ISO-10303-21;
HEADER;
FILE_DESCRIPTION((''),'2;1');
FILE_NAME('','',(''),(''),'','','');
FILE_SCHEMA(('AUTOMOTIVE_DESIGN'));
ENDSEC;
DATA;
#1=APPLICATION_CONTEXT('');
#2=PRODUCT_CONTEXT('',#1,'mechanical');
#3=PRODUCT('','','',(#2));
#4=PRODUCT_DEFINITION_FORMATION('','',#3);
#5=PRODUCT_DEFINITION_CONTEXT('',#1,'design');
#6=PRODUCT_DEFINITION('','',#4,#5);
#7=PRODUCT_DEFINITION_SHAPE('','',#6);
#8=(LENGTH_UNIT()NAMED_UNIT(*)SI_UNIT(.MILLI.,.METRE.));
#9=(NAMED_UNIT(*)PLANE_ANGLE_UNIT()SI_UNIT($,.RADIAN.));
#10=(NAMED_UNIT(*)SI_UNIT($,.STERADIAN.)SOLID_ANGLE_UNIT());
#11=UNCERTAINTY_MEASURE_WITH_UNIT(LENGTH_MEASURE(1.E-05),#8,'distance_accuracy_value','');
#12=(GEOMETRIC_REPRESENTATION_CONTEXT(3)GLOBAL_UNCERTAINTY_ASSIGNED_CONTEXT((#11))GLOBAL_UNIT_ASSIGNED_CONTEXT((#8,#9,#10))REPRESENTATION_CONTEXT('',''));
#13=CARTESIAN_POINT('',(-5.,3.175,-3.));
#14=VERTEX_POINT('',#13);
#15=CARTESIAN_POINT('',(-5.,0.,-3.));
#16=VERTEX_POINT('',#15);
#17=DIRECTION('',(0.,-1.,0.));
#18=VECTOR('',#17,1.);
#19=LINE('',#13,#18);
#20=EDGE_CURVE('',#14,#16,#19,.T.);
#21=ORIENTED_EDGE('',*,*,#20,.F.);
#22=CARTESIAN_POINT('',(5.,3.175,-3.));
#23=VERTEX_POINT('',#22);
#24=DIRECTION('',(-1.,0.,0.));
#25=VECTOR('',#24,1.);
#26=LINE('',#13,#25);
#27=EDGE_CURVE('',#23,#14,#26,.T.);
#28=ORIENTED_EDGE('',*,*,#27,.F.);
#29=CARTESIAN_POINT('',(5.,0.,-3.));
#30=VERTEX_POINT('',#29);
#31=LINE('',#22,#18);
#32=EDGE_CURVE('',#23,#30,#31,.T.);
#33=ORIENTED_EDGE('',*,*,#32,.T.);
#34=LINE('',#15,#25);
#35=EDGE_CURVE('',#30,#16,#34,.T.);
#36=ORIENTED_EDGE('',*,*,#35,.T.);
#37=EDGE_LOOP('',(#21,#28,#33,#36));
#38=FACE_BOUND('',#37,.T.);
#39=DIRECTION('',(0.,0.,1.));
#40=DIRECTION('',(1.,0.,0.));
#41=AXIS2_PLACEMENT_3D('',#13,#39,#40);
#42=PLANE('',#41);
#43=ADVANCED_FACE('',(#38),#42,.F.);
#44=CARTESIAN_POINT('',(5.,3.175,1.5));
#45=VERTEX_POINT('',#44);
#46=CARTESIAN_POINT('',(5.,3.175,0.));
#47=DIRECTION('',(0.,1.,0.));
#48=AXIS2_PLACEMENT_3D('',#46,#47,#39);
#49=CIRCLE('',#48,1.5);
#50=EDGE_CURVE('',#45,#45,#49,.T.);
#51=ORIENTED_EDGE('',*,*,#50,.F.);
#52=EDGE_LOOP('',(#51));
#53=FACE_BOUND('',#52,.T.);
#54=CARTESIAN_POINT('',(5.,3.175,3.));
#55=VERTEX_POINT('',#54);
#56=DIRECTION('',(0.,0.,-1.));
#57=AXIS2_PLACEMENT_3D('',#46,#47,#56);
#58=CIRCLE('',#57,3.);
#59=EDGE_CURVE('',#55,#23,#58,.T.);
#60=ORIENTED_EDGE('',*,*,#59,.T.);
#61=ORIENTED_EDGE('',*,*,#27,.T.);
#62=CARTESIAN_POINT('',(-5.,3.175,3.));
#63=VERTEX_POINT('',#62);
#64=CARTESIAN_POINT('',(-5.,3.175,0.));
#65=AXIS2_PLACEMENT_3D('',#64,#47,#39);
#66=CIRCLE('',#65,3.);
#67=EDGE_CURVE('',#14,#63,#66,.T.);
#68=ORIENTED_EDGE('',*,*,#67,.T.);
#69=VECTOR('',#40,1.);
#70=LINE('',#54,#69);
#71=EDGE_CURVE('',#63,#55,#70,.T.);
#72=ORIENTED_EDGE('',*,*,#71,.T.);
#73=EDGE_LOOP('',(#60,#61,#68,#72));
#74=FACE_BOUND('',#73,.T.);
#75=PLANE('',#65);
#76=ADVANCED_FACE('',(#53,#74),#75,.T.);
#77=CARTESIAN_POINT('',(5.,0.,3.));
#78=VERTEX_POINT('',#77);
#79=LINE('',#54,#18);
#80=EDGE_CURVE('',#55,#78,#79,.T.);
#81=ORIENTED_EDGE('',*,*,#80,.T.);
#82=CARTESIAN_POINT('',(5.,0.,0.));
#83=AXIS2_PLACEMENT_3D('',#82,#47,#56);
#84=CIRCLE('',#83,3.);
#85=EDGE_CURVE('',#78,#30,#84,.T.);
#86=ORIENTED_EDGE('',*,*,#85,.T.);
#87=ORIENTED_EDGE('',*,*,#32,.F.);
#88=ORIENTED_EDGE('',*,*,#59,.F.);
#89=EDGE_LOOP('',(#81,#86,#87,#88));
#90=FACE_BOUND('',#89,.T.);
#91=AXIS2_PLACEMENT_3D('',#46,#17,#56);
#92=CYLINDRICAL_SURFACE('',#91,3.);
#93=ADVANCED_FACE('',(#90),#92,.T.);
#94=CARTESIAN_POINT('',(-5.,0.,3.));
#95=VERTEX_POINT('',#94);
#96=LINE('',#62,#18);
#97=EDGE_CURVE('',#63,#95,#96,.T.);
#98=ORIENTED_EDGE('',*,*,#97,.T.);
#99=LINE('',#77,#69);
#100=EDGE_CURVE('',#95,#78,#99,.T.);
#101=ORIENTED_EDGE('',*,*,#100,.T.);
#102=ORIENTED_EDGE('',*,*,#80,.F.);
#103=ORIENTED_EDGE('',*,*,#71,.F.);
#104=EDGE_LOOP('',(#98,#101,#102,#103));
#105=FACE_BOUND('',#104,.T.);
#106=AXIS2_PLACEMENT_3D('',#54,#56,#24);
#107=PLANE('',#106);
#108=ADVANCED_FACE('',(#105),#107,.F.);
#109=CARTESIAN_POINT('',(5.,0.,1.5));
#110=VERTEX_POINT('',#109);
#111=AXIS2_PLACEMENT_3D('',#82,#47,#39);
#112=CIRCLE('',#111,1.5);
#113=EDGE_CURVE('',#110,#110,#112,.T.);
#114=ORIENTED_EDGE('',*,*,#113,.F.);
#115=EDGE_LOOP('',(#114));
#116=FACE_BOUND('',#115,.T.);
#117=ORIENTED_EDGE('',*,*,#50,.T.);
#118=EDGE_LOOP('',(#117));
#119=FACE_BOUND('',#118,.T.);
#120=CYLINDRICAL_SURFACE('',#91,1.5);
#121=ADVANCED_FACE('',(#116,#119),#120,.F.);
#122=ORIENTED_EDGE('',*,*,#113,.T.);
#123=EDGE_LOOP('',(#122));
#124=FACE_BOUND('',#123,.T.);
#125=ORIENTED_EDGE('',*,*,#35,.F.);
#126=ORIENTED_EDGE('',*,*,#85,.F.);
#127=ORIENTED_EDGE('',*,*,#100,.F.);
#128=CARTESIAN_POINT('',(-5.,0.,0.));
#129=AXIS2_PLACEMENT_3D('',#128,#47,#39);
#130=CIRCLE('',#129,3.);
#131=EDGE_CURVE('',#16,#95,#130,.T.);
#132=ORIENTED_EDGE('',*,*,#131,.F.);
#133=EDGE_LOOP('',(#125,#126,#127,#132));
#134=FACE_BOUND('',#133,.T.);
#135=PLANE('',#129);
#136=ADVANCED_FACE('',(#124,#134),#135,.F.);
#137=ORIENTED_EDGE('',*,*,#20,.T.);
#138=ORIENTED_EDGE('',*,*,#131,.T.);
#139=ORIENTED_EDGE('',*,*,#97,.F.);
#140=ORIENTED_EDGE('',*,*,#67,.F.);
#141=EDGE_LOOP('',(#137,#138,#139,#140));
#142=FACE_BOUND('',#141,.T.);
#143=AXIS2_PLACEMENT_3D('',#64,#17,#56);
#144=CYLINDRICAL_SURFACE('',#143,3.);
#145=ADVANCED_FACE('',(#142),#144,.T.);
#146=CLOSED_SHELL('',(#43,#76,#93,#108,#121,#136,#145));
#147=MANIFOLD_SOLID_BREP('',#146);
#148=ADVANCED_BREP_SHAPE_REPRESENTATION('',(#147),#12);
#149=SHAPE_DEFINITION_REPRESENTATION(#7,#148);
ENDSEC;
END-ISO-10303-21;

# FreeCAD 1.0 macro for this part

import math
import FreeCAD as App
import Part
import Sketcher

V = App.Vector

doc = App.newDocument("Part")
params = doc.addObject("Spreadsheet::Sheet", "Params")
for row, (alias, value) in enumerate([
    ("sketch1_diameter", "3 mm"),
    ("sketch1_radius", "3 mm"),
    ("sketch1_width", "10 mm"),
    ("pad1_length", "3.175 mm"),
], start=1):
    params.set(f"A{row}", alias)
    params.set(f"B{row}", "=" + value)
    params.setAlias(f"B{row}", alias)

body = doc.addObject("PartDesign::Body", "Body")

# Sketch on XZ plane
sketch1 = doc.addObject("Sketcher::SketchObject", "Sketch")
body.addObject(sketch1)
sketch1.AttachmentSupport = (doc.XZ_Plane, [""])
sketch1.MapMode = "FlatFace"
sketch1.addGeometry(Part.LineSegment(V(5, -3, 0), V(-5, -3, 0)), False)
sketch1.addGeometry(Part.ArcOfCircle(Part.Circle(V(-5, 0, 0), V(0, 0, 1), 3), math.radians(90), math.radians(270)), False)
sketch1.addGeometry(Part.LineSegment(V(-5, 3, 0), V(5, 3, 0)), False)
sketch1.addGeometry(Part.ArcOfCircle(Part.Circle(V(5, 0, 0), V(0, 0, 1), 3), math.radians(-90), math.radians(90)), False)
sketch1.addGeometry(Part.Circle(V(5, 0, 0), V(0, 0, 1), 1.5), False)
sketch1.addConstraint(Sketcher.Constraint("Tangent", 0, 2, 1, 2))
sketch1.addConstraint(Sketcher.Constraint("Tangent", 1, 1, 2, 1))
sketch1.addConstraint(Sketcher.Constraint("Tangent", 2, 2, 3, 2))
sketch1.addConstraint(Sketcher.Constraint("Tangent", 3, 1, 0, 1))
sketch1.addConstraint(Sketcher.Constraint("Horizontal", 0))
sketch1.addConstraint(Sketcher.Constraint("Horizontal", 2))
sketch1.addConstraint(Sketcher.Constraint("Coincident", 4, 3, 3, 3))
sketch1.addConstraint(Sketcher.Constraint("Symmetric", 1, 3, 3, 3, -1, 1))
sketch1.addConstraint(Sketcher.Constraint("Diameter", 4, 3.0))
sketch1.addConstraint(Sketcher.Constraint("Radius", 1, 3.0))
sketch1.addConstraint(Sketcher.Constraint("DistanceX", 0, 2, 0, 1, 10.0))
sketch1.setExpression("Constraints[8]", "Params.sketch1_diameter")
sketch1.setExpression("Constraints[9]", "Params.sketch1_radius")
sketch1.setExpression("Constraints[10]", "Params.sketch1_width")
pad1 = doc.addObject("PartDesign::Pad", "Pad")
body.addObject(pad1)
pad1.Profile = sketch1
pad1.setExpression("Length", "Params.pad1_length")
pad1.Reversed = True

doc.recompute()
